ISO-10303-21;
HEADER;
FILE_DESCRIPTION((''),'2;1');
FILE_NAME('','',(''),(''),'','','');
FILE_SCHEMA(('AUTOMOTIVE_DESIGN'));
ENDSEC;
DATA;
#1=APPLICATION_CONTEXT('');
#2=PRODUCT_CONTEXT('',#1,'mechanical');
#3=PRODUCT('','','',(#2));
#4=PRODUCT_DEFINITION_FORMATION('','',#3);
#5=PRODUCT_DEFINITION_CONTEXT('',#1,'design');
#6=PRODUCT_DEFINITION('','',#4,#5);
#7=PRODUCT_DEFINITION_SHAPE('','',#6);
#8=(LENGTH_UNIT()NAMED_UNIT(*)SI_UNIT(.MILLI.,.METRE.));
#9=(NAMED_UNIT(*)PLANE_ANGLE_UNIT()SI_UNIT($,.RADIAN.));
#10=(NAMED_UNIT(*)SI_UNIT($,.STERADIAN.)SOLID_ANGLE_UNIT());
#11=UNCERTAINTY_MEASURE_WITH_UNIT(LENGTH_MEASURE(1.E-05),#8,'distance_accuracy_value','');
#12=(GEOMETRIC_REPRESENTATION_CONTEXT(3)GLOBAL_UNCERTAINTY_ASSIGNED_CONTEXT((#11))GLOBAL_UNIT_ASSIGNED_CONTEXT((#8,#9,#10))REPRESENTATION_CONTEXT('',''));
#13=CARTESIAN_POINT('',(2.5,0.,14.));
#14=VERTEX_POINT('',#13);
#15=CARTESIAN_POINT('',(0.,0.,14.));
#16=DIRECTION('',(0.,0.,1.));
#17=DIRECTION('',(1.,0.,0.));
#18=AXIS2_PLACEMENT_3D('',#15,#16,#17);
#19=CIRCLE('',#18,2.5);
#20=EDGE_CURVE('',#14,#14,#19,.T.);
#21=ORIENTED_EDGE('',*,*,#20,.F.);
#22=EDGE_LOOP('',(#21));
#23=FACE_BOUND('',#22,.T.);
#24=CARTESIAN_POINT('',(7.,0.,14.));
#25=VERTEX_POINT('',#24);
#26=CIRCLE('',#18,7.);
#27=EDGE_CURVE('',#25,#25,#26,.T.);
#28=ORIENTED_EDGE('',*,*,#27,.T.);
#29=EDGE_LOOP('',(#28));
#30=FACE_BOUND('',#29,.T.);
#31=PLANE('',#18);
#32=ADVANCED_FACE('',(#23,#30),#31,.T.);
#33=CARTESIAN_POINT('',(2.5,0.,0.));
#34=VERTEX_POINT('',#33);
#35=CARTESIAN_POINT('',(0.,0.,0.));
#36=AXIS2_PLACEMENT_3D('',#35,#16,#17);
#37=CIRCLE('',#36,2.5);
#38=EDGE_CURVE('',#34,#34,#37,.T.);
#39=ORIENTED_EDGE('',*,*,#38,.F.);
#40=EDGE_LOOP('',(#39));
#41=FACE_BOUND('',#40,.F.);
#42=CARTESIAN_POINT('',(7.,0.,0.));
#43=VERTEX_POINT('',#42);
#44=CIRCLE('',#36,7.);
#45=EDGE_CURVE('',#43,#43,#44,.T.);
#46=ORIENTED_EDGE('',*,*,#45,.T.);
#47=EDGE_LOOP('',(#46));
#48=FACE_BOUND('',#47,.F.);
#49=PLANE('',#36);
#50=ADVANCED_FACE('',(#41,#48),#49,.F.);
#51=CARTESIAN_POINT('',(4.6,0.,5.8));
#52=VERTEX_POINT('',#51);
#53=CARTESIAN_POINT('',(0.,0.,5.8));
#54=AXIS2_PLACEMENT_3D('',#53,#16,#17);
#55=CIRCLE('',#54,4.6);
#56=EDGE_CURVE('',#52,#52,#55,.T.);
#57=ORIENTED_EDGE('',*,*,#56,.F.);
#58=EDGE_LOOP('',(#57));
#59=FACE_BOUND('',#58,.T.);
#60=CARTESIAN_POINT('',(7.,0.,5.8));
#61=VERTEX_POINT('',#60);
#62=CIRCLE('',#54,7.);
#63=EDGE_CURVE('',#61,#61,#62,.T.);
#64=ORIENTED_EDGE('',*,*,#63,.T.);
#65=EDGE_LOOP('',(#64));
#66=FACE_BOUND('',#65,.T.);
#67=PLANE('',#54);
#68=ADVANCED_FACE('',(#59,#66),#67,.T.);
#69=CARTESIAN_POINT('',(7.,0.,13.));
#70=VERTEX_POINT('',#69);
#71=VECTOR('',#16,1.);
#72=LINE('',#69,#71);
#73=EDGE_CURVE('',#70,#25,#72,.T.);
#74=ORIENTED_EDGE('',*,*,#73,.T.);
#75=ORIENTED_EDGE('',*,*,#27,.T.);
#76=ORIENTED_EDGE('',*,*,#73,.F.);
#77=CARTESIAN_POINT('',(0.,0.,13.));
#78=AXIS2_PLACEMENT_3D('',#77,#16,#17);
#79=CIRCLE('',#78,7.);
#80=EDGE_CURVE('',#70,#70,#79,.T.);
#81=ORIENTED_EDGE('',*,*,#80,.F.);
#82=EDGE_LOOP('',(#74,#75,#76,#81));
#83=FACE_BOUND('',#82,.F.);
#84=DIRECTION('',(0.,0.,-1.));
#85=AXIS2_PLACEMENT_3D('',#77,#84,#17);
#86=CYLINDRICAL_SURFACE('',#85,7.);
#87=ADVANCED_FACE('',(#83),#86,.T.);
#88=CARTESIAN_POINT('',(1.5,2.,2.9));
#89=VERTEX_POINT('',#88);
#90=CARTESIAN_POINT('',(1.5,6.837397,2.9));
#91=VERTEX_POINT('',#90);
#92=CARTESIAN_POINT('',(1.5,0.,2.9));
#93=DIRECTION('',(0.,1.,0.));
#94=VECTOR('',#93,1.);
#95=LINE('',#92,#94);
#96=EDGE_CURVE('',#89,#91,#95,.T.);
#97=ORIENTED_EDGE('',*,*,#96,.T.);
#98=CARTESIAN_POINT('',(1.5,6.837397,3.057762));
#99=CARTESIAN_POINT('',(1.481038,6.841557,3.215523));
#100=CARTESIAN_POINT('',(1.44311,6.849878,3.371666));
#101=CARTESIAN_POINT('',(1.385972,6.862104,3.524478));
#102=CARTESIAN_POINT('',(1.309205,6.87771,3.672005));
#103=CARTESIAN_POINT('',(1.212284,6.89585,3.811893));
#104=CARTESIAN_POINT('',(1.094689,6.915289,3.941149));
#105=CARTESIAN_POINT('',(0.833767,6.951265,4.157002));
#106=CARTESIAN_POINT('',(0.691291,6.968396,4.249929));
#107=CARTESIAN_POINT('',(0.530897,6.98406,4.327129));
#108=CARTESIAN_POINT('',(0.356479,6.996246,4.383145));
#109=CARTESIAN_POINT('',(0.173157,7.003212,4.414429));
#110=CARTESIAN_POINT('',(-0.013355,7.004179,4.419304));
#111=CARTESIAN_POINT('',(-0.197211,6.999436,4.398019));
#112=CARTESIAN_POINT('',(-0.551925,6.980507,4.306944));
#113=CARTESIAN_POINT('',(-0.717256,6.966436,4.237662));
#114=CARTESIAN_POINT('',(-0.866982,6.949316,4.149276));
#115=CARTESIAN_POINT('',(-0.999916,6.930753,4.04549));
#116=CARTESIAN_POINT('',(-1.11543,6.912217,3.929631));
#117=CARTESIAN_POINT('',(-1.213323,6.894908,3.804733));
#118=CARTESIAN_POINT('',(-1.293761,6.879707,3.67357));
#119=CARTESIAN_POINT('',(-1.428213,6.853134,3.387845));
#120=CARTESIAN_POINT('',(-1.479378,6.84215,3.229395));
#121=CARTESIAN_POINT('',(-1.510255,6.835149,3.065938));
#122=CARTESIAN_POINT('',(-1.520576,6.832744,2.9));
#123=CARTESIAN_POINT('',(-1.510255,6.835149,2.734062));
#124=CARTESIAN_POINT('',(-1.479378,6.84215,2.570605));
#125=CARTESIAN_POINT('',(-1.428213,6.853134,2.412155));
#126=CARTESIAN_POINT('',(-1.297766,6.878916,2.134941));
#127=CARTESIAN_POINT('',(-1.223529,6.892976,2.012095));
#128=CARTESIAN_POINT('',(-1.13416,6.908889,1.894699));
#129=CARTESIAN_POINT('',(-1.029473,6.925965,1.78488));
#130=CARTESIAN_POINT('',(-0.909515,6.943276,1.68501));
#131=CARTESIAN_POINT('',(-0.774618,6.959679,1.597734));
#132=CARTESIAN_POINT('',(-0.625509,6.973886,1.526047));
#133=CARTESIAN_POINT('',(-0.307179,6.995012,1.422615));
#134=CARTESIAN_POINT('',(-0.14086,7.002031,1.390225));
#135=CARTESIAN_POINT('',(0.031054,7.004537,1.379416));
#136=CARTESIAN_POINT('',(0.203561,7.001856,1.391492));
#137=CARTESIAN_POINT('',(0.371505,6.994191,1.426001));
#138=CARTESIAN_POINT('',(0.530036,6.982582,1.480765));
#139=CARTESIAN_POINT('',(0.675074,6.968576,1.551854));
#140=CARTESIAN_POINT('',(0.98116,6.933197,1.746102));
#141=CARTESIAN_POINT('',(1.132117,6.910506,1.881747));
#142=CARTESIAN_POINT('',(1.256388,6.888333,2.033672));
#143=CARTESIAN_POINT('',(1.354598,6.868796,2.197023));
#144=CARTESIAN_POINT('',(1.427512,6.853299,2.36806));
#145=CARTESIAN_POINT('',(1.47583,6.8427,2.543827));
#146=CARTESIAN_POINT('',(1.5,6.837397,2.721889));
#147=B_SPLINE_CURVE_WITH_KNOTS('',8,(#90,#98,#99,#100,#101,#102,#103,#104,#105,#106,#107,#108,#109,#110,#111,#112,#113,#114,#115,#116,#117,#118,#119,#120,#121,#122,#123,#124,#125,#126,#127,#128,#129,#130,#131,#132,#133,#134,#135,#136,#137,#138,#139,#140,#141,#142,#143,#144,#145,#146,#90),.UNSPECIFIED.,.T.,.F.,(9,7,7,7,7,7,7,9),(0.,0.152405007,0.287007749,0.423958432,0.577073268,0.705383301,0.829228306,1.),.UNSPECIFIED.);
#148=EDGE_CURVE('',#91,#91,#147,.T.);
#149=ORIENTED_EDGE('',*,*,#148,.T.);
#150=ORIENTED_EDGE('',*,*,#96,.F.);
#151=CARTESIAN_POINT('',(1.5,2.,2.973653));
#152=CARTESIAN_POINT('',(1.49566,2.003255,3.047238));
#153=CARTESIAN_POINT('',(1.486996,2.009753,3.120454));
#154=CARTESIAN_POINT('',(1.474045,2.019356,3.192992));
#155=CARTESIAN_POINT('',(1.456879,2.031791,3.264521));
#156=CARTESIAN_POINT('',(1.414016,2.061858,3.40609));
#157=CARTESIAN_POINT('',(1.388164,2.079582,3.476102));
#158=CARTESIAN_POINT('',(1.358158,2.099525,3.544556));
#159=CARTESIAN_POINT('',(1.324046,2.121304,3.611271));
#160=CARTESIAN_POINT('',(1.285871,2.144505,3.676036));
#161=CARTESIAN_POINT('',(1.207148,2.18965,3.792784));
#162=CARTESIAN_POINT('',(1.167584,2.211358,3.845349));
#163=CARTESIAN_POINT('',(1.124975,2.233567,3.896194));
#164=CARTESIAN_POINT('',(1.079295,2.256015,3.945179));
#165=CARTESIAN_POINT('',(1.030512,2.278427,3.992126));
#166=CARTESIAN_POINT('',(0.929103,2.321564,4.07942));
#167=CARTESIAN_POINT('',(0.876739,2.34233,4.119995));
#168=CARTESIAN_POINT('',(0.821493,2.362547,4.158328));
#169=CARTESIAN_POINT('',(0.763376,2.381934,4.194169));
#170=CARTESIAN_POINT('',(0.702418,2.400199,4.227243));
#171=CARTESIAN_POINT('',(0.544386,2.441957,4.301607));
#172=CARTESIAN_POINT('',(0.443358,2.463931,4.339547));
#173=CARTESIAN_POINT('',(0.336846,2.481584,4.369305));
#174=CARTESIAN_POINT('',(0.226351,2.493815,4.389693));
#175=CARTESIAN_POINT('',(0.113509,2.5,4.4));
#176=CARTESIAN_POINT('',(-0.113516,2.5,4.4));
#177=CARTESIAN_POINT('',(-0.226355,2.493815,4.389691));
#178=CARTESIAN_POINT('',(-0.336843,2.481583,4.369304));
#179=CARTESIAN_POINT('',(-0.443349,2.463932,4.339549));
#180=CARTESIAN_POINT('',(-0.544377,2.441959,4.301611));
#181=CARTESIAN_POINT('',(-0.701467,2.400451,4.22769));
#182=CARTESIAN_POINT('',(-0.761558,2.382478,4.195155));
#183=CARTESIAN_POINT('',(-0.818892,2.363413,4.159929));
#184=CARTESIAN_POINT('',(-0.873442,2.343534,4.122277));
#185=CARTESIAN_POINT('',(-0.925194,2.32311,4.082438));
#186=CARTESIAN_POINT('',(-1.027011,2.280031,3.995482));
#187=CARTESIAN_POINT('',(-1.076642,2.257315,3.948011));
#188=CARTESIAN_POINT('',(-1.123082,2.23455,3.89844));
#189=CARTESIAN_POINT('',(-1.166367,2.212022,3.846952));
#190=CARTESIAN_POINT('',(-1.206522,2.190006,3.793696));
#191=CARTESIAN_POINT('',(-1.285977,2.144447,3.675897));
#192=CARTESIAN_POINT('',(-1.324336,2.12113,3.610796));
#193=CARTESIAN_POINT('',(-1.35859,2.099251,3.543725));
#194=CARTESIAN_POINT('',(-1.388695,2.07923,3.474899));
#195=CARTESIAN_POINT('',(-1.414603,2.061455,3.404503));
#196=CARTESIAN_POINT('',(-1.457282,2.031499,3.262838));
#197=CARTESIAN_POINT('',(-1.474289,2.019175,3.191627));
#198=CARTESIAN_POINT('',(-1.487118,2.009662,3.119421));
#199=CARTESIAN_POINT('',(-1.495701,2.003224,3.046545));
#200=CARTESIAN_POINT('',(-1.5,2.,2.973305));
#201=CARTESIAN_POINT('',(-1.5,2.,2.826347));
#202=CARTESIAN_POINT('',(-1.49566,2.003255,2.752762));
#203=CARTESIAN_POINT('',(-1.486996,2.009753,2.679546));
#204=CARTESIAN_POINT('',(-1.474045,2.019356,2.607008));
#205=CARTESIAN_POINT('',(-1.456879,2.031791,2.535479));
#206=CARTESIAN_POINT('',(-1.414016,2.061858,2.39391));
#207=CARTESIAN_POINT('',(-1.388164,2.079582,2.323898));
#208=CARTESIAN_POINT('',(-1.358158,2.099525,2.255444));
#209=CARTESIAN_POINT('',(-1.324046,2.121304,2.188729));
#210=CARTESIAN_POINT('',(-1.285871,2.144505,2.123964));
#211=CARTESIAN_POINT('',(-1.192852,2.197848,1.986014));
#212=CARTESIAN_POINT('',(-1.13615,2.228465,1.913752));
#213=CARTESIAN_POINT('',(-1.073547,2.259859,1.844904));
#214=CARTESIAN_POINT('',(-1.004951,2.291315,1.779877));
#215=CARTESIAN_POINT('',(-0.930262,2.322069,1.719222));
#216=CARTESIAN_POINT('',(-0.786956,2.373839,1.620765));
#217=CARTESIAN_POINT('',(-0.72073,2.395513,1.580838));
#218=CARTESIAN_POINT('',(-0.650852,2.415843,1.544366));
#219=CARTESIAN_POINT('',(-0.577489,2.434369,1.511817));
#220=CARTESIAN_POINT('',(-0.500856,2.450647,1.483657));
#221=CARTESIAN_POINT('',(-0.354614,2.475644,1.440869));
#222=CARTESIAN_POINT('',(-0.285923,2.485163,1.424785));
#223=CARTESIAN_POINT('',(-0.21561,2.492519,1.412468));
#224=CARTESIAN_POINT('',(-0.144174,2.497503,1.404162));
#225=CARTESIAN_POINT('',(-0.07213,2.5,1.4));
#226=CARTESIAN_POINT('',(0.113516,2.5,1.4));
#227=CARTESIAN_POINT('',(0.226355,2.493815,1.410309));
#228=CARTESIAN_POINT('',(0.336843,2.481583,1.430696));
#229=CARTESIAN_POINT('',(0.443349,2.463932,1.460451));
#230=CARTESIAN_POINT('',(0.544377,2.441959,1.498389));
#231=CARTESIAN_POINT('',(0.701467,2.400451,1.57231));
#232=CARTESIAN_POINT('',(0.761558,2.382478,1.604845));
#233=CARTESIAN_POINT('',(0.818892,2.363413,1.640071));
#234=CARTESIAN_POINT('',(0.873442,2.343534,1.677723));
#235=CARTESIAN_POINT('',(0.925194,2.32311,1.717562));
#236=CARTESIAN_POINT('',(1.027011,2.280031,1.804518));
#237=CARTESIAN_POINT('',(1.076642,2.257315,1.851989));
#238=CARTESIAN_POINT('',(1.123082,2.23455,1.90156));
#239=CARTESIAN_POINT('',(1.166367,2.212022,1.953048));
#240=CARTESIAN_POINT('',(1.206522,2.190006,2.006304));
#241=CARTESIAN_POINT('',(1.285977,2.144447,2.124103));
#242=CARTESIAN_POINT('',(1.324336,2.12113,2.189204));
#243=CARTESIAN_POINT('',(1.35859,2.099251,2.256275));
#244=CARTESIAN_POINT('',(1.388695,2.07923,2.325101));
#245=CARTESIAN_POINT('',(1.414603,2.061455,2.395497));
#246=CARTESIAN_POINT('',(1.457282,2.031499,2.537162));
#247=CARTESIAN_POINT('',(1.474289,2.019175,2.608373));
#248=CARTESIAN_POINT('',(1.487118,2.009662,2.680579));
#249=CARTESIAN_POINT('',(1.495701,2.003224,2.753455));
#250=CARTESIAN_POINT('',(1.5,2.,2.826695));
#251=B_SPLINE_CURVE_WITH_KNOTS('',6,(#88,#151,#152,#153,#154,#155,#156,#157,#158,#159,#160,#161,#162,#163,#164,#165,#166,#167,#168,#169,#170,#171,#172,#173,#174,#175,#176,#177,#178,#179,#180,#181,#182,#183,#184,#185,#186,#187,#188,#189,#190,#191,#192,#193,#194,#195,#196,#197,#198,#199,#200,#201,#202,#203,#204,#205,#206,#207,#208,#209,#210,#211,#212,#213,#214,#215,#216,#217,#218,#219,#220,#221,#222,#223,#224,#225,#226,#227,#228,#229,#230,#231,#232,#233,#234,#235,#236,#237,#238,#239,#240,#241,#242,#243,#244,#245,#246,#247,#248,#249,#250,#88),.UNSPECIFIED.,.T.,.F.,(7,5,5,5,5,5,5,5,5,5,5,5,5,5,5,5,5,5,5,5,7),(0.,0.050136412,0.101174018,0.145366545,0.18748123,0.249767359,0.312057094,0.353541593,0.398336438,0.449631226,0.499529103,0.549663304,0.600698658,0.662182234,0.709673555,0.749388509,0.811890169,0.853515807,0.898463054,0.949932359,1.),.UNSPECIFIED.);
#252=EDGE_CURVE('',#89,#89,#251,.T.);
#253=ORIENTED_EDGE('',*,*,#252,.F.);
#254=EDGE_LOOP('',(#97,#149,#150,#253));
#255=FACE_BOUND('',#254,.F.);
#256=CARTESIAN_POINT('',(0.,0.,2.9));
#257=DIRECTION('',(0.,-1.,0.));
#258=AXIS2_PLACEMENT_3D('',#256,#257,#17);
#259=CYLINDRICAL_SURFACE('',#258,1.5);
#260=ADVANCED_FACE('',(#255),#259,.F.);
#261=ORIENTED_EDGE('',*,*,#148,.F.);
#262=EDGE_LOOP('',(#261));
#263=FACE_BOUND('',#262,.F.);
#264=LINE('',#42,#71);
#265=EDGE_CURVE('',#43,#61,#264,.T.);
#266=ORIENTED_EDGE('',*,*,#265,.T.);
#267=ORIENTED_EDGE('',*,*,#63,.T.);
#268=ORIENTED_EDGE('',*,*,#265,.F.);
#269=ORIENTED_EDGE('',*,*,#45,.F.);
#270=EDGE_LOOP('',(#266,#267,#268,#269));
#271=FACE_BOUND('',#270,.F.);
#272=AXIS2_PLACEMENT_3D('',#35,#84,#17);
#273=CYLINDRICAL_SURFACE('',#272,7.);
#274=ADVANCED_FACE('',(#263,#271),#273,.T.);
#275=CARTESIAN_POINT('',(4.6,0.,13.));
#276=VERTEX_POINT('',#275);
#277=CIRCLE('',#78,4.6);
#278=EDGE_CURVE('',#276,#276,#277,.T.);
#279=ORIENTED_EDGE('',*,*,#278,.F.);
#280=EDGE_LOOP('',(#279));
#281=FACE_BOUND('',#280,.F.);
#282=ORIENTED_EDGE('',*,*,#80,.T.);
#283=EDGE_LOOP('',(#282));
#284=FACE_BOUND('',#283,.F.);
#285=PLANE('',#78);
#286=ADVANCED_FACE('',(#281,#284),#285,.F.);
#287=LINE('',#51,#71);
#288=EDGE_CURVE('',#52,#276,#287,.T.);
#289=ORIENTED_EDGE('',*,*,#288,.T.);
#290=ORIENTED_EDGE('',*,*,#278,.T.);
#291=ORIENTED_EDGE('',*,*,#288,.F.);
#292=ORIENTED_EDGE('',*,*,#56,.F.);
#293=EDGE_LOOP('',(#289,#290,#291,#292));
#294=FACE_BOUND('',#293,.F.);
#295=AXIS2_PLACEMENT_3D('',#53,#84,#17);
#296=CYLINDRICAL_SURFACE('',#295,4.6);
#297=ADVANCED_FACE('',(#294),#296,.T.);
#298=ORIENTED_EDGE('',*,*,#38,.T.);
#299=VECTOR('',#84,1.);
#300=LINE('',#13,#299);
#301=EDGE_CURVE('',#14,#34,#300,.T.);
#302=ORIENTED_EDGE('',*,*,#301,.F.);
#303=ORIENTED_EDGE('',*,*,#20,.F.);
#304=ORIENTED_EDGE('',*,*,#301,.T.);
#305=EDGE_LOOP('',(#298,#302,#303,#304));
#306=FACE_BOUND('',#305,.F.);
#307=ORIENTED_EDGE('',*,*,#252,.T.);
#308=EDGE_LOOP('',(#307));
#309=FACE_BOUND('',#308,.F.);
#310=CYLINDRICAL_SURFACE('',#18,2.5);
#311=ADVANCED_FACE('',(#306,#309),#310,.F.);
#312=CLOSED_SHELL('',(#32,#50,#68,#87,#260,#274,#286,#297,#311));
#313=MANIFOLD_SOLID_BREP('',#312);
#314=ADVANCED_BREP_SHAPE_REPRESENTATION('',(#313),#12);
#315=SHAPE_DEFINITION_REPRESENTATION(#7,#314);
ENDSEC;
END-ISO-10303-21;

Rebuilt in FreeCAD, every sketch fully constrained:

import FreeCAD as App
import Part
import Sketcher

V = App.Vector

doc = App.newDocument("Part")
body = doc.addObject("PartDesign::Body", "Body")

# Sketch on XY plane
sketch1 = body.newObject("Sketcher::SketchObject", "Sketch")
sketch1.AttachmentSupport = (doc.getObject("XY_Plane"), [""])
sketch1.MapMode = "FlatFace"
sketch1.addGeometry(Part.Circle(V(0, 0, 0), V(0, 0, 1), 7), False)
sketch1.addConstraint([
    Sketcher.Constraint("Coincident", 0, 3, -1, 1),
    Sketcher.Constraint("Diameter", 0, 14.0),
])
pad1 = body.newObject("PartDesign::Pad", "Pad")
pad1.Profile = sketch1
pad1.Length = 5.8

# Sketch on XY plane
sketch2 = body.newObject("Sketcher::SketchObject", "Sketch001")
sketch2.AttachmentSupport = (doc.getObject("XY_Plane"), [""])
sketch2.MapMode = "FlatFace"
sketch2.AttachmentOffset = App.Placement(V(0, 0, 5.8), App.Rotation())
sketch2.addGeometry(Part.Circle(V(0, 0, 0), V(0, 0, 1), 4.6), False)
sketch2.addConstraint([
    Sketcher.Constraint("Coincident", 0, 3, -1, 1),
    Sketcher.Constraint("Diameter", 0, 9.2),
])
pad2 = body.newObject("PartDesign::Pad", "Pad001")
pad2.Profile = sketch2
pad2.Length = 7.2

# Sketch on XY plane
sketch3 = body.newObject("Sketcher::SketchObject", "Sketch002")
sketch3.AttachmentSupport = (doc.getObject("XY_Plane"), [""])
sketch3.MapMode = "FlatFace"
sketch3.AttachmentOffset = App.Placement(V(0, 0, 13), App.Rotation())
sketch3.addGeometry(Part.Circle(V(0, 0, 0), V(0, 0, 1), 7), False)
sketch3.addConstraint([
    Sketcher.Constraint("Coincident", 0, 3, -1, 1),
    Sketcher.Constraint("Diameter", 0, 14.0),
])
pad3 = body.newObject("PartDesign::Pad", "Pad002")
pad3.Profile = sketch3
pad3.Length = 1

# Sketch on XZ plane
sketch4 = body.newObject("Sketcher::SketchObject", "Sketch003")
sketch4.AttachmentSupport = (doc.getObject("XZ_Plane"), [""])
sketch4.MapMode = "FlatFace"
sketch4.addGeometry(Part.Circle(V(0, 2.9, 0), V(0, 0, 1), 1.5), False)
sketch4.addConstraint([
    Sketcher.Constraint("PointOnObject", 0, 3, -2),
    Sketcher.Constraint("Diameter", 0, 3.0),
    Sketcher.Constraint("DistanceY", -1, 1, 0, 3, 2.9),
])
pocket1 = body.newObject("PartDesign::Pocket", "Pocket")
pocket1.Profile = sketch4
pocket1.Length = 115.8762

# Sketch on XY plane
sketch5 = body.newObject("Sketcher::SketchObject", "Sketch004")
sketch5.AttachmentSupport = (doc.getObject("XY_Plane"), [""])
sketch5.MapMode = "FlatFace"
sketch5.AttachmentOffset = App.Placement(V(0, 0, 14), App.Rotation())
sketch5.addGeometry(Part.Circle(V(0, 0, 0), V(0, 0, 1), 2.5), False)
sketch5.addConstraint([
    Sketcher.Constraint("Coincident", 0, 3, -1, 1),
    Sketcher.Constraint("Diameter", 0, 5.0),
])
pocket2 = body.newObject("PartDesign::Pocket", "Pocket001")
pocket2.Profile = sketch5
pocket2.Type = "ThroughAll"

doc.recompute()
